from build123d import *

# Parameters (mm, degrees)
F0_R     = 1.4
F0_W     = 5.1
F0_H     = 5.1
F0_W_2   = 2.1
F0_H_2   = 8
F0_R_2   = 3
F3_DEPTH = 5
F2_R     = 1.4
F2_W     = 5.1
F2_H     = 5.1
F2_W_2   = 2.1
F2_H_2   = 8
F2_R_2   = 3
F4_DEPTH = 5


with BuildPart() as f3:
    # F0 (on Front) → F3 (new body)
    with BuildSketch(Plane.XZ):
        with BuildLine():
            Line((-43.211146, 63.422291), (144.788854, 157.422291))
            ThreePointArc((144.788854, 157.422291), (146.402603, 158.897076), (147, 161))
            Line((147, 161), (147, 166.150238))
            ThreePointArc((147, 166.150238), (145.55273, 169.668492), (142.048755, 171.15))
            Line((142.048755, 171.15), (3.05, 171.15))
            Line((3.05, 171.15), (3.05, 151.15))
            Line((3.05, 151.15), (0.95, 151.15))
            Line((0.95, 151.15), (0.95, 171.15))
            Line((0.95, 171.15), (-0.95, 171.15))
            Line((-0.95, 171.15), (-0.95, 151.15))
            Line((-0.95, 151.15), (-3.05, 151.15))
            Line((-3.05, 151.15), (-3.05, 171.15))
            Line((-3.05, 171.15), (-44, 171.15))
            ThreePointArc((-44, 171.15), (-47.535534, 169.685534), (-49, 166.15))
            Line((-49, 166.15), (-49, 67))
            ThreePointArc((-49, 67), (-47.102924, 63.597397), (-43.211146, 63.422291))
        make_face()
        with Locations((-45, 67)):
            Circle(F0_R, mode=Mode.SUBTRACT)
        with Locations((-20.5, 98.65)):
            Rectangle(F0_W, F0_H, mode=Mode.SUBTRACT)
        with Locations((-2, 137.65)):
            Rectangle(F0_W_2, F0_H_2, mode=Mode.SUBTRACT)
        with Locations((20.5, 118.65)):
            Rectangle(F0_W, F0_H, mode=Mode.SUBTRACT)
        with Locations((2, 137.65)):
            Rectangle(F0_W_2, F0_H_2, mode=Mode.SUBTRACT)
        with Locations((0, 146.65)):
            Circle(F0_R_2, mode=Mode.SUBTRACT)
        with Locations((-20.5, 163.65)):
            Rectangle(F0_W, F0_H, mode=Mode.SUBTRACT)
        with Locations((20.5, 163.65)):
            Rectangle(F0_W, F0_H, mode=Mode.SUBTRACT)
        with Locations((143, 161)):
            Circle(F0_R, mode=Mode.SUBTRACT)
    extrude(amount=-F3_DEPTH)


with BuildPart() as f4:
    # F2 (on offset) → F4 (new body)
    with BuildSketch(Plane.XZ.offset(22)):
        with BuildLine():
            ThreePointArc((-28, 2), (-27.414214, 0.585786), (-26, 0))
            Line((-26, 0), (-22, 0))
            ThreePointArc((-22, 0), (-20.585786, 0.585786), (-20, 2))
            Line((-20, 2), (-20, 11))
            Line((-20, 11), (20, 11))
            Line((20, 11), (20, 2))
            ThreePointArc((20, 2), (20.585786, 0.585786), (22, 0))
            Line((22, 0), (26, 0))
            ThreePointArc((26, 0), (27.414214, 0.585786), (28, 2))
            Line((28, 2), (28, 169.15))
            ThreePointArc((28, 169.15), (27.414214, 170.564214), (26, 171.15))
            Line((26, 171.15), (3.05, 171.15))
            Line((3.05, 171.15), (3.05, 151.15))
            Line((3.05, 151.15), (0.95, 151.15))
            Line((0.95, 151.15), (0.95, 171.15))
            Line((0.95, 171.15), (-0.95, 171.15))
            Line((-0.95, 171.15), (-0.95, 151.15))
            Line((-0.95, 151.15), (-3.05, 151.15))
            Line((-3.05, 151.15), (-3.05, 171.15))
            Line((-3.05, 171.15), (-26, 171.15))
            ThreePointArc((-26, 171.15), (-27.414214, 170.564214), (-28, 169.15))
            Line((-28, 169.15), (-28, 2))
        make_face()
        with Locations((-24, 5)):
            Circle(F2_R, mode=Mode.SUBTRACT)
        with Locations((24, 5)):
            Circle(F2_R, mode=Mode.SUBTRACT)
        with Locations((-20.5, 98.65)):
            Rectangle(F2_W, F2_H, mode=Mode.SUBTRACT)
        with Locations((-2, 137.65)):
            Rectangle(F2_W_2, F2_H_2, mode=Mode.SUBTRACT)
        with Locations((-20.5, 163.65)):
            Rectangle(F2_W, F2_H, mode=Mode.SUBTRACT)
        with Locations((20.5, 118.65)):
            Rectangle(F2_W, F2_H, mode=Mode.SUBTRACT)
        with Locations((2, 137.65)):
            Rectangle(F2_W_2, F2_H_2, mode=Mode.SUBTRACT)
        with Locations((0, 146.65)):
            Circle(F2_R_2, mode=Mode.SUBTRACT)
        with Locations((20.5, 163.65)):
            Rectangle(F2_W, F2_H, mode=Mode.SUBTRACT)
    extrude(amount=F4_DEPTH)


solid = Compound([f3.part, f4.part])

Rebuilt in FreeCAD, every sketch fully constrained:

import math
import FreeCAD as App
import Part
import Sketcher
from FreeCAD import Vector

doc = App.newDocument("Part")
params = doc.addObject("Spreadsheet::Sheet", "Params")
for row, (alias, value) in enumerate([
    ("sketch1_diameter", "6 mm"),
    ("sketch1_radius", "4.999999 mm"),
    ("sketch1_radius2", "5 mm"),
    ("sketch1_radius3", "4.000001 mm"),
    ("sketch1_diameter2", "2.8 mm"),
    ("pad1_length", "5 mm"),
    ("sketch2_diameter", "6 mm"),
    ("sketch2_radius", "1.999999 mm"),
    ("sketch2_diameter2", "2.8 mm"),
    ("sketch2_width", "4 mm"),
    ("sketch2_width2", "40 mm"),
    ("pad2_length", "5 mm"),
], start=1):
    params.set(f"A{row}", alias)
    params.set(f"B{row}", "=" + value)
    params.setAlias(f"B{row}", alias)

body = doc.addObject("PartDesign::Body", "Body")

sketch1 = doc.addObject("Sketcher::SketchObject", "Sketch")
body.addObject(sketch1)
sketch1.AttachmentSupport = (doc.XZ_Plane, [""])
sketch1.MapMode = "FlatFace"
sketch1.addGeometry([
    Part.LineSegment(Vector(-43.211146, 63.422291, 0), Vector(144.788854, 157.422291, 0)),
    Part.ArcOfCircle(Part.Circle(Vector(142.999997, 161.000002, 0), Vector(0, 0, 1), 4.000003), math.radians(-63.434932), math.radians(-0.000022)),
    Part.LineSegment(Vector(147, 161, 0), Vector(147, 166.150238, 0)),
    Part.ArcOfCircle(Part.Circle(Vector(142.000001, 166.150239, 0), Vector(0, 0, 1), 4.999999), math.radians(-0.000007), math.radians(89.44131)),
    Part.LineSegment(Vector(142.048755, 171.15, 0), Vector(3.05, 171.15, 0)),
    Part.LineSegment(Vector(3.05, 171.15, 0), Vector(3.05, 151.15, 0)),
    Part.LineSegment(Vector(3.05, 151.15, 0), Vector(0.95, 151.15, 0)),
    Part.LineSegment(Vector(0.95, 151.15, 0), Vector(0.95, 171.15, 0)),
    Part.LineSegment(Vector(0.95, 171.15, 0), Vector(-0.95, 171.15, 0)),
    Part.LineSegment(Vector(-0.95, 171.15, 0), Vector(-0.95, 151.15, 0)),
    Part.LineSegment(Vector(-0.95, 151.15, 0), Vector(-3.05, 151.15, 0)),
    Part.LineSegment(Vector(-3.05, 151.15, 0), Vector(-3.05, 171.15, 0)),
    Part.LineSegment(Vector(-3.05, 171.15, 0), Vector(-44, 171.15, 0)),
    Part.ArcOfCircle(Part.Circle(Vector(-44, 166.15, 0), Vector(0, 0, 1), 5), math.radians(89.999996), math.radians(180.000004)),
    Part.LineSegment(Vector(-49, 166.15, 0), Vector(-49, 67, 0)),
    Part.ArcOfCircle(Part.Circle(Vector(-44.999999, 67.000001, 0), Vector(0, 0, 1), 4.000001), math.radians(-179.999988), math.radians(-63.434967)),
    Part.Circle(Vector(-45, 67, 0), Vector(0, 0, 1), 1.4),
    Part.LineSegment(Vector(-17.95, 96.1, 0), Vector(-23.05, 96.1, 0)),
    Part.LineSegment(Vector(-23.05, 96.1, 0), Vector(-23.05, 101.2, 0)),
    Part.LineSegment(Vector(-23.05, 101.2, 0), Vector(-17.95, 101.2, 0)),
    Part.LineSegment(Vector(-17.95, 101.2, 0), Vector(-17.95, 96.1, 0)),
    Part.LineSegment(Vector(-0.95, 133.65, 0), Vector(-3.05, 133.65, 0)),
    Part.LineSegment(Vector(-3.05, 133.65, 0), Vector(-3.05, 141.65, 0)),
    Part.LineSegment(Vector(-3.05, 141.65, 0), Vector(-0.95, 141.65, 0)),
    Part.LineSegment(Vector(-0.95, 141.65, 0), Vector(-0.95, 133.65, 0)),
    Part.LineSegment(Vector(23.05, 116.1, 0), Vector(17.95, 116.1, 0)),
    Part.LineSegment(Vector(17.95, 116.1, 0), Vector(17.95, 121.2, 0)),
    Part.LineSegment(Vector(17.95, 121.2, 0), Vector(23.05, 121.2, 0)),
    Part.LineSegment(Vector(23.05, 121.2, 0), Vector(23.05, 116.1, 0)),
    Part.LineSegment(Vector(3.05, 133.65, 0), Vector(0.95, 133.65, 0)),
    Part.LineSegment(Vector(0.95, 133.65, 0), Vector(0.95, 141.65, 0)),
    Part.LineSegment(Vector(0.95, 141.65, 0), Vector(3.05, 141.65, 0)),
    Part.LineSegment(Vector(3.05, 141.65, 0), Vector(3.05, 133.65, 0)),
    Part.Circle(Vector(0, 146.65, 0), Vector(0, 0, 1), 3),
    Part.LineSegment(Vector(-17.95, 161.1, 0), Vector(-23.05, 161.1, 0)),
    Part.LineSegment(Vector(-23.05, 161.1, 0), Vector(-23.05, 166.2, 0)),
    Part.LineSegment(Vector(-23.05, 166.2, 0), Vector(-17.95, 166.2, 0)),
    Part.LineSegment(Vector(-17.95, 166.2, 0), Vector(-17.95, 161.1, 0)),
    Part.LineSegment(Vector(23.05, 161.1, 0), Vector(17.95, 161.1, 0)),
    Part.LineSegment(Vector(17.95, 161.1, 0), Vector(17.95, 166.2, 0)),
    Part.LineSegment(Vector(17.95, 166.2, 0), Vector(23.05, 166.2, 0)),
    Part.LineSegment(Vector(23.05, 166.2, 0), Vector(23.05, 161.1, 0)),
    Part.Circle(Vector(143, 161, 0), Vector(0, 0, 1), 1.4),
], False)
sketch1.addConstraint([
    Sketcher.Constraint("Coincident", 0, 2, 1, 1),
    Sketcher.Constraint("Coincident", 1, 2, 2, 1),
    Sketcher.Constraint("Coincident", 2, 2, 3, 1),
    Sketcher.Constraint("Coincident", 3, 2, 4, 1),
    Sketcher.Constraint("Coincident", 4, 2, 5, 1),
    Sketcher.Constraint("Coincident", 5, 2, 6, 1),
    Sketcher.Constraint("Coincident", 6, 2, 7, 1),
    Sketcher.Constraint("Coincident", 7, 2, 8, 1),
    Sketcher.Constraint("Coincident", 8, 2, 9, 1),
    Sketcher.Constraint("Coincident", 9, 2, 10, 1),
    Sketcher.Constraint("Coincident", 10, 2, 11, 1),
    Sketcher.Constraint("Coincident", 11, 2, 12, 1),
    Sketcher.Constraint("Coincident", 12, 2, 13, 1),
    Sketcher.Constraint("Coincident", 13, 2, 14, 1),
    Sketcher.Constraint("Coincident", 14, 2, 15, 1),
    Sketcher.Constraint("Coincident", 15, 2, 0, 1),
    Sketcher.Constraint("Coincident", 17, 2, 18, 1),
    Sketcher.Constraint("Coincident", 18, 2, 19, 1),
    Sketcher.Constraint("Coincident", 19, 2, 20, 1),
    Sketcher.Constraint("Coincident", 20, 2, 17, 1),
    Sketcher.Constraint("Coincident", 21, 2, 22, 1),
    Sketcher.Constraint("Coincident", 22, 2, 23, 1),
    Sketcher.Constraint("Coincident", 23, 2, 24, 1),
    Sketcher.Constraint("Coincident", 24, 2, 21, 1),
    Sketcher.Constraint("Coincident", 25, 2, 26, 1),
    Sketcher.Constraint("Coincident", 26, 2, 27, 1),
    Sketcher.Constraint("Coincident", 27, 2, 28, 1),
    Sketcher.Constraint("Coincident", 28, 2, 25, 1),
    Sketcher.Constraint("Coincident", 29, 2, 30, 1),
    Sketcher.Constraint("Coincident", 30, 2, 31, 1),
    Sketcher.Constraint("Coincident", 31, 2, 32, 1),
    Sketcher.Constraint("Coincident", 32, 2, 29, 1),
    Sketcher.Constraint("Coincident", 34, 2, 35, 1),
    Sketcher.Constraint("Coincident", 35, 2, 36, 1),
    Sketcher.Constraint("Coincident", 36, 2, 37, 1),
    Sketcher.Constraint("Coincident", 37, 2, 34, 1),
    Sketcher.Constraint("Coincident", 38, 2, 39, 1),
    Sketcher.Constraint("Coincident", 39, 2, 40, 1),
    Sketcher.Constraint("Coincident", 40, 2, 41, 1),
    Sketcher.Constraint("Coincident", 41, 2, 38, 1),
    Sketcher.Constraint("Vertical", 2),
    Sketcher.Constraint("Horizontal", 4),
    Sketcher.Constraint("Vertical", 5),
    Sketcher.Constraint("Horizontal", 6),
    Sketcher.Constraint("Vertical", 7),
    Sketcher.Constraint("Horizontal", 8),
    Sketcher.Constraint("Vertical", 9),
    Sketcher.Constraint("Horizontal", 10),
    Sketcher.Constraint("Vertical", 11),
    Sketcher.Constraint("Horizontal", 12),
    Sketcher.Constraint("Vertical", 14),
    Sketcher.Constraint("Horizontal", 17),
    Sketcher.Constraint("Vertical", 18),
    Sketcher.Constraint("Horizontal", 19),
    Sketcher.Constraint("Vertical", 20),
    Sketcher.Constraint("Horizontal", 21),
    Sketcher.Constraint("Vertical", 22),
    Sketcher.Constraint("Horizontal", 23),
    Sketcher.Constraint("Vertical", 24),
    Sketcher.Constraint("Horizontal", 25),
    Sketcher.Constraint("Vertical", 26),
    Sketcher.Constraint("Horizontal", 27),
    Sketcher.Constraint("Vertical", 28),
    Sketcher.Constraint("Horizontal", 29),
    Sketcher.Constraint("Vertical", 30),
    Sketcher.Constraint("Horizontal", 31),
    Sketcher.Constraint("Vertical", 32),
    Sketcher.Constraint("Horizontal", 34),
    Sketcher.Constraint("Vertical", 35),
    Sketcher.Constraint("Horizontal", 36),
    Sketcher.Constraint("Vertical", 37),
    Sketcher.Constraint("Horizontal", 38),
    Sketcher.Constraint("Vertical", 39),
    Sketcher.Constraint("Horizontal", 40),
    Sketcher.Constraint("Vertical", 41),
    Sketcher.Constraint("Coincident", 16, 3, 15, 3),
    Sketcher.Constraint("Coincident", 42, 3, 1, 3),
    Sketcher.Constraint("PointOnObject", 33, 3, -2),
    Sketcher.Constraint("Diameter", 33, 6.0),
    Sketcher.Constraint("Radius", 3, 4.999999),
    Sketcher.Constraint("Radius", 13, 5.0),
    Sketcher.Constraint("Radius", 15, 4.000001),
    Sketcher.Constraint("Diameter", 16, 2.8),
    Sketcher.Constraint("Diameter", 42, 2.8),
    Sketcher.Constraint("DistanceY", 5, 2, 5, 1, 20.0),
    Sketcher.Constraint("DistanceY", 7, 1, 7, 2, 20.0),
    Sketcher.Constraint("DistanceY", 9, 2, 9, 1, 20.0),
    Sketcher.Constraint("DistanceY", 11, 1, 11, 2, 20.0),
    Sketcher.Constraint("DistanceY", 22, 1, 22, 2, 8.0),
    Sketcher.Constraint("DistanceY", 30, 1, 30, 2, 8.0),
    Sketcher.Constraint("DistanceX", 6, 2, 6, 1, 2.1),
    Sketcher.Constraint("DistanceX", 8, 2, 8, 1, 1.9),
    Sketcher.Constraint("DistanceX", 10, 2, 10, 1, 2.1),
    Sketcher.Constraint("DistanceX", 17, 2, 17, 1, 5.1),
    Sketcher.Constraint("DistanceX", 21, 2, 21, 1, 2.1),
    Sketcher.Constraint("DistanceX", 25, 2, 25, 1, 5.1),
    Sketcher.Constraint("DistanceX", 29, 2, 29, 1, 2.1),
    Sketcher.Constraint("DistanceX", 34, 2, 34, 1, 5.1),
    Sketcher.Constraint("DistanceX", 38, 2, 38, 1, 5.1),
    Sketcher.Constraint("DistanceY", 18, 1, 18, 2, 5.1),
    Sketcher.Constraint("DistanceY", 26, 1, 26, 2, 5.1),
    Sketcher.Constraint("DistanceY", 35, 1, 35, 2, 5.1),
    Sketcher.Constraint("DistanceY", 39, 1, 39, 2, 5.1),
    Sketcher.Constraint("DistanceY", -1, 1, 1, 3, 161.000002),
    Sketcher.Constraint("DistanceX", -1, 1, 3, 3, 142.000001),
    Sketcher.Constraint("DistanceX", 13, 3, -1, 1, 44.0),
    Sketcher.Constraint("DistanceY", -1, 1, 15, 3, 67.000001),
    Sketcher.Constraint("DistanceX", -1, 1, 42, 3, 143.0),
    Sketcher.Constraint("DistanceY", -1, 1, 1, 2, 161.0),
    Sketcher.Constraint("DistanceX", 12, 2, -1, 1, 44.0),
    Sketcher.Constraint("DistanceY", -1, 1, 14, 2, 67.0),
    Sketcher.Constraint("DistanceY", 13, 2, 12, 2, 5.0),
    Sketcher.Constraint("DistanceY", 21, 2, 33, 3, 13.0),
    Sketcher.Constraint("DistanceX", 21, 2, 6, 2, 4.0),
    Sketcher.Constraint("DistanceX", 21, 2, 25, 2, 21.0),
    Sketcher.Constraint("DistanceX", 21, 2, 29, 2, 4.0),
    Sketcher.Constraint("DistanceY", 29, 2, 23, 2, 8.0),
    Sketcher.Constraint("DistanceX", 34, 2, 10, 2, 20.0),
    Sketcher.Constraint("DistanceX", 6, 2, 38, 2, 17.0),
    Sketcher.Constraint("DistanceX", 12, 2, 12, 1, 40.95),
    Sketcher.Constraint("DistanceY", 14, 2, 14, 1, 99.15),
    Sketcher.Constraint("DistanceY", -1, 1, 17, 2, 96.1),
    Sketcher.Constraint("DistanceY", -1, 1, 25, 2, 116.1),
    Sketcher.Constraint("DistanceY", -1, 1, 34, 2, 161.1),
    Sketcher.Constraint("DistanceY", -1, 1, 38, 2, 161.1),
    Sketcher.Constraint("DistanceY", 33, 3, 13, 3, 19.5),
    Sketcher.Constraint("DistanceX", 17, 2, -1, 1, 23.05),
    Sketcher.Constraint("DistanceY", 2, 1, 2, 2, 5.150238),
    Sketcher.Constraint("Distance", 0, 210.19039),
    Sketcher.Constraint("DistanceX", 4, 2, 4, 1, 138.998755),
    Sketcher.Constraint("DistanceY", -1, 1, 0, 2, 157.422291),
])
sketch1.setExpression("Constraints[78]", "Params.sketch1_diameter")
sketch1.setExpression("Constraints[79]", "Params.sketch1_radius")
sketch1.setExpression("Constraints[80]", "Params.sketch1_radius2")
sketch1.setExpression("Constraints[81]", "Params.sketch1_radius3")
sketch1.setExpression("Constraints[82]", "Params.sketch1_diameter2")
pad1 = doc.addObject("PartDesign::Pad", "Pad")
body.addObject(pad1)
pad1.Profile = sketch1
pad1.setExpression("Length", "Params.pad1_length")
pad1.Reversed = True
body2 = doc.addObject("PartDesign::Body", "Body001")

sketch2 = doc.addObject("Sketcher::SketchObject", "Sketch001")
body2.addObject(sketch2)
sketch2.AttachmentSupport = (doc.getObject("XZ_Plane001"), [""])
sketch2.MapMode = "FlatFace"
sketch2.AttachmentOffset = App.Placement(Vector(0, 0, 22), App.Rotation())
sketch2.addGeometry([
    Part.ArcOfCircle(Part.Circle(Vector(-26, 2, 0), Vector(0, 0, 1), 2), math.radians(180), math.radians(270)),
    Part.LineSegment(Vector(-26, 0, 0), Vector(-22, 0, 0)),
    Part.ArcOfCircle(Part.Circle(Vector(-22, 2, 0), Vector(0, 0, 1), 2), math.radians(-90), math.radians(0)),
    Part.LineSegment(Vector(-20, 2, 0), Vector(-20, 11, 0)),
    Part.LineSegment(Vector(-20, 11, 0), Vector(20, 11, 0)),
    Part.LineSegment(Vector(20, 11, 0), Vector(20, 2, 0)),
    Part.ArcOfCircle(Part.Circle(Vector(22, 2, 0), Vector(0, 0, 1), 2), math.radians(180), math.radians(270)),
    Part.LineSegment(Vector(22, 0, 0), Vector(26, 0, 0)),
    Part.ArcOfCircle(Part.Circle(Vector(26, 2, 0), Vector(0, 0, 1), 2), math.radians(-90), math.radians(0)),
    Part.LineSegment(Vector(28, 2, 0), Vector(28, 169.2, 0)),
    Part.ArcOfCircle(Part.Circle(Vector(26, 169.2, 0), Vector(0, 0, 1), 2), math.radians(0), math.radians(90)),
    Part.LineSegment(Vector(26, 171.2, 0), Vector(3, 171.2, 0)),
    Part.LineSegment(Vector(3, 171.2, 0), Vector(3, 151.2, 0)),
    Part.LineSegment(Vector(3, 151.2, 0), Vector(0.9, 151.2, 0)),
    Part.LineSegment(Vector(0.9, 151.2, 0), Vector(0.9, 171.2, 0)),
    Part.LineSegment(Vector(0.9, 171.2, 0), Vector(-0.9, 171.2, 0)),
    Part.LineSegment(Vector(-0.9, 171.2, 0), Vector(-0.9, 151.2, 0)),
    Part.LineSegment(Vector(-0.9, 151.2, 0), Vector(-3, 151.2, 0)),
    Part.LineSegment(Vector(-3, 151.2, 0), Vector(-3, 171.2, 0)),
    Part.LineSegment(Vector(-3, 171.2, 0), Vector(-26, 171.2, 0)),
    Part.ArcOfCircle(Part.Circle(Vector(-26, 169.2, 0), Vector(0, 0, 1), 2), math.radians(90), math.radians(180)),
    Part.LineSegment(Vector(-28, 169.2, 0), Vector(-28, 2, 0)),
    Part.Circle(Vector(-24, 5, 0), Vector(0, 0, 1), 1.4),
    Part.Circle(Vector(24, 5, 0), Vector(0, 0, 1), 1.4),
    Part.LineSegment(Vector(-17.9, 96.1, 0), Vector(-23.1, 96.1, 0)),
    Part.LineSegment(Vector(-23.1, 96.1, 0), Vector(-23.1, 101.2, 0)),
    Part.LineSegment(Vector(-23.1, 101.2, 0), Vector(-17.9, 101.2, 0)),
    Part.LineSegment(Vector(-17.9, 101.2, 0), Vector(-17.9, 96.1, 0)),
    Part.LineSegment(Vector(-17.9, 161.1, 0), Vector(-23.1, 161.1, 0)),
    Part.LineSegment(Vector(-23.1, 161.1, 0), Vector(-23.1, 166.2, 0)),
    Part.LineSegment(Vector(-23.1, 166.2, 0), Vector(-17.9, 166.2, 0)),
    Part.LineSegment(Vector(-17.9, 166.2, 0), Vector(-17.9, 161.1, 0)),
    Part.LineSegment(Vector(-0.9, 133.7, 0), Vector(-3, 133.7, 0)),
    Part.LineSegment(Vector(-3, 133.7, 0), Vector(-3, 141.7, 0)),
    Part.LineSegment(Vector(-3, 141.7, 0), Vector(-0.9, 141.7, 0)),
    Part.LineSegment(Vector(-0.9, 141.7, 0), Vector(-0.9, 133.7, 0)),
    Part.Circle(Vector(0, 146.7, 0), Vector(0, 0, 1), 3),
    Part.LineSegment(Vector(23.1, 116.1, 0), Vector(17.9, 116.1, 0)),
    Part.LineSegment(Vector(17.9, 116.1, 0), Vector(17.9, 121.2, 0)),
    Part.LineSegment(Vector(17.9, 121.2, 0), Vector(23.1, 121.2, 0)),
    Part.LineSegment(Vector(23.1, 121.2, 0), Vector(23.1, 116.1, 0)),
    Part.LineSegment(Vector(3, 133.7, 0), Vector(0.9, 133.7, 0)),
    Part.LineSegment(Vector(0.9, 133.7, 0), Vector(0.9, 141.7, 0)),
    Part.LineSegment(Vector(0.9, 141.7, 0), Vector(3, 141.7, 0)),
    Part.LineSegment(Vector(3, 141.7, 0), Vector(3, 133.7, 0)),
    Part.LineSegment(Vector(23.1, 161.1, 0), Vector(17.9, 161.1, 0)),
    Part.LineSegment(Vector(17.9, 161.1, 0), Vector(17.9, 166.2, 0)),
    Part.LineSegment(Vector(17.9, 166.2, 0), Vector(23.1, 166.2, 0)),
    Part.LineSegment(Vector(23.1, 166.2, 0), Vector(23.1, 161.1, 0)),
], False)
sketch2.addConstraint([
    Sketcher.Constraint("Tangent", 0, 2, 1, 1),
    Sketcher.Constraint("Tangent", 1, 2, 2, 1),
    Sketcher.Constraint("Tangent", 2, 2, 3, 1),
    Sketcher.Constraint("Coincident", 3, 2, 4, 1),
    Sketcher.Constraint("Coincident", 4, 2, 5, 1),
    Sketcher.Constraint("Tangent", 5, 2, 6, 1),
    Sketcher.Constraint("Tangent", 6, 2, 7, 1),
    Sketcher.Constraint("Tangent", 7, 2, 8, 1),
    Sketcher.Constraint("Tangent", 8, 2, 9, 1),
    Sketcher.Constraint("Tangent", 9, 2, 10, 1),
    Sketcher.Constraint("Tangent", 10, 2, 11, 1),
    Sketcher.Constraint("Coincident", 11, 2, 12, 1),
    Sketcher.Constraint("Coincident", 12, 2, 13, 1),
    Sketcher.Constraint("Coincident", 13, 2, 14, 1),
    Sketcher.Constraint("Coincident", 14, 2, 15, 1),
    Sketcher.Constraint("Coincident", 15, 2, 16, 1),
    Sketcher.Constraint("Coincident", 16, 2, 17, 1),
    Sketcher.Constraint("Coincident", 17, 2, 18, 1),
    Sketcher.Constraint("Coincident", 18, 2, 19, 1),
    Sketcher.Constraint("Tangent", 19, 2, 20, 1),
    Sketcher.Constraint("Tangent", 20, 2, 21, 1),
    Sketcher.Constraint("Tangent", 21, 2, 0, 1),
    Sketcher.Constraint("Coincident", 24, 2, 25, 1),
    Sketcher.Constraint("Coincident", 25, 2, 26, 1),
    Sketcher.Constraint("Coincident", 26, 2, 27, 1),
    Sketcher.Constraint("Coincident", 27, 2, 24, 1),
    Sketcher.Constraint("Coincident", 28, 2, 29, 1),
    Sketcher.Constraint("Coincident", 29, 2, 30, 1),
    Sketcher.Constraint("Coincident", 30, 2, 31, 1),
    Sketcher.Constraint("Coincident", 31, 2, 28, 1),
    Sketcher.Constraint("Coincident", 32, 2, 33, 1),
    Sketcher.Constraint("Coincident", 33, 2, 34, 1),
    Sketcher.Constraint("Coincident", 34, 2, 35, 1),
    Sketcher.Constraint("Coincident", 35, 2, 32, 1),
    Sketcher.Constraint("Coincident", 37, 2, 38, 1),
    Sketcher.Constraint("Coincident", 38, 2, 39, 1),
    Sketcher.Constraint("Coincident", 39, 2, 40, 1),
    Sketcher.Constraint("Coincident", 40, 2, 37, 1),
    Sketcher.Constraint("Coincident", 41, 2, 42, 1),
    Sketcher.Constraint("Coincident", 42, 2, 43, 1),
    Sketcher.Constraint("Coincident", 43, 2, 44, 1),
    Sketcher.Constraint("Coincident", 44, 2, 41, 1),
    Sketcher.Constraint("Coincident", 45, 2, 46, 1),
    Sketcher.Constraint("Coincident", 46, 2, 47, 1),
    Sketcher.Constraint("Coincident", 47, 2, 48, 1),
    Sketcher.Constraint("Coincident", 48, 2, 45, 1),
    Sketcher.Constraint("Horizontal", 1),
    Sketcher.Constraint("Vertical", 3),
    Sketcher.Constraint("Horizontal", 4),
    Sketcher.Constraint("Vertical", 5),
    Sketcher.Constraint("Horizontal", 7),
    Sketcher.Constraint("Vertical", 9),
    Sketcher.Constraint("Horizontal", 11),
    Sketcher.Constraint("Vertical", 12),
    Sketcher.Constraint("Horizontal", 13),
    Sketcher.Constraint("Vertical", 14),
    Sketcher.Constraint("Horizontal", 15),
    Sketcher.Constraint("Vertical", 16),
    Sketcher.Constraint("Horizontal", 17),
    Sketcher.Constraint("Vertical", 18),
    Sketcher.Constraint("Horizontal", 19),
    Sketcher.Constraint("Vertical", 21),
    Sketcher.Constraint("Horizontal", 24),
    Sketcher.Constraint("Vertical", 25),
    Sketcher.Constraint("Horizontal", 26),
    Sketcher.Constraint("Vertical", 27),
    Sketcher.Constraint("Horizontal", 28),
    Sketcher.Constraint("Vertical", 29),
    Sketcher.Constraint("Horizontal", 30),
    Sketcher.Constraint("Vertical", 31),
    Sketcher.Constraint("Horizontal", 32),
    Sketcher.Constraint("Vertical", 33),
    Sketcher.Constraint("Horizontal", 34),
    Sketcher.Constraint("Vertical", 35),
    Sketcher.Constraint("Horizontal", 37),
    Sketcher.Constraint("Vertical", 38),
    Sketcher.Constraint("Horizontal", 39),
    Sketcher.Constraint("Vertical", 40),
    Sketcher.Constraint("Horizontal", 41),
    Sketcher.Constraint("Vertical", 42),
    Sketcher.Constraint("Horizontal", 43),
    Sketcher.Constraint("Vertical", 44),
    Sketcher.Constraint("Horizontal", 45),
    Sketcher.Constraint("Vertical", 46),
    Sketcher.Constraint("Horizontal", 47),
    Sketcher.Constraint("Vertical", 48),
    Sketcher.Constraint("Equal", 0, 2),
    Sketcher.Constraint("Equal", 2, 6),
    Sketcher.Constraint("Equal", 6, 8),
    Sketcher.Constraint("Equal", 8, 10),
    Sketcher.Constraint("Equal", 10, 20),
    Sketcher.Constraint("Equal", 22, 23),
    Sketcher.Constraint("Symmetric", 1, 2, 6, 2, -1, 1),
    Sketcher.Constraint("Symmetric", 0, 3, 8, 3, -2),
    Sketcher.Constraint("Symmetric", 22, 3, 23, 3, -2),
    Sketcher.Constraint("Symmetric", 13, 2, 16, 2, -2),
    Sketcher.Constraint("Symmetric", 11, 2, 18, 2, -2),
    Sketcher.Constraint("Symmetric", 35, 2, 41, 2, -2),
    Sketcher.Constraint("Symmetric", 33, 2, 43, 2, -2),
    Sketcher.Constraint("Symmetric", 31, 2, 45, 2, -2),
    Sketcher.Constraint("Symmetric", 29, 2, 47, 2, -2),
    Sketcher.Constraint("PointOnObject", 36, 3, -2),
    Sketcher.Constraint("Horizontal", 11, 2, 14, 2),
    Sketcher.Constraint("Vertical", 25, 2, 28, 2),
    Sketcher.Constraint("Vertical", 27, 2, 30, 2),
    Sketcher.Constraint("Vertical", 18, 2, 32, 2),
    Sketcher.Constraint("Vertical", 16, 2, 34, 2),
    Sketcher.Constraint("Vertical", 38, 2, 45, 2),
    Sketcher.Constraint("Vertical", 40, 2, 47, 2),
    Sketcher.Constraint("Equal", 47, 25),
    Sketcher.Constraint("Equal", 27, 29),
    Sketcher.Constraint("Equal", 31, 38),
    Sketcher.Constraint("Diameter", 36, 6.0),
    Sketcher.Constraint("Radius", 0, 1.999999),
    Sketcher.Constraint("Diameter", 22, 2.8),
    Sketcher.Constraint("DistanceX", 1, 1, 1, 2, 4.0),
    Sketcher.Constraint("DistanceX", 4, 1, 4, 2, 40.0),
    Sketcher.Constraint("DistanceY", 3, 1, 3, 2, 9.0),
    Sketcher.Constraint("DistanceY", 12, 2, 12, 1, 20.0),
    Sketcher.Constraint("DistanceY", 33, 1, 33, 2, 8.0),
    Sketcher.Constraint("DistanceX", 13, 2, 13, 1, 2.1),
    Sketcher.Constraint("DistanceX", 15, 2, 15, 1, 1.9),
    Sketcher.Constraint("DistanceX", 24, 2, 24, 1, 5.1),
    Sketcher.Constraint("DistanceX", 22, 3, -1, 1, 24.0),
    Sketcher.Constraint("DistanceY", -1, 1, 22, 3, 5.0),
    Sketcher.Constraint("DistanceX", 24, 2, 17, 2, 20.0),
    Sketcher.Constraint("DistanceY", 32, 2, 36, 3, 13.0),
    Sketcher.Constraint("DistanceY", 9, 1, 9, 2, 167.15),
    Sketcher.Constraint("DistanceY", -1, 1, 24, 2, 96.1),
    Sketcher.Constraint("DistanceY", -1, 1, 28, 2, 161.1),
    Sketcher.Constraint("DistanceY", -1, 1, 37, 2, 116.1),
    Sketcher.Constraint("DistanceY", 36, 3, 10, 3, 22.500001),
])
sketch2.setExpression("Constraints[112]", "Params.sketch2_diameter")
sketch2.setExpression("Constraints[113]", "Params.sketch2_radius")
sketch2.setExpression("Constraints[114]", "Params.sketch2_diameter2")
sketch2.setExpression("Constraints[115]", "Params.sketch2_width")
sketch2.setExpression("Constraints[116]", "Params.sketch2_width2")
pad2 = doc.addObject("PartDesign::Pad", "Pad001")
body2.addObject(pad2)
pad2.Profile = sketch2
pad2.setExpression("Length", "Params.pad2_length")

doc.recompute()
